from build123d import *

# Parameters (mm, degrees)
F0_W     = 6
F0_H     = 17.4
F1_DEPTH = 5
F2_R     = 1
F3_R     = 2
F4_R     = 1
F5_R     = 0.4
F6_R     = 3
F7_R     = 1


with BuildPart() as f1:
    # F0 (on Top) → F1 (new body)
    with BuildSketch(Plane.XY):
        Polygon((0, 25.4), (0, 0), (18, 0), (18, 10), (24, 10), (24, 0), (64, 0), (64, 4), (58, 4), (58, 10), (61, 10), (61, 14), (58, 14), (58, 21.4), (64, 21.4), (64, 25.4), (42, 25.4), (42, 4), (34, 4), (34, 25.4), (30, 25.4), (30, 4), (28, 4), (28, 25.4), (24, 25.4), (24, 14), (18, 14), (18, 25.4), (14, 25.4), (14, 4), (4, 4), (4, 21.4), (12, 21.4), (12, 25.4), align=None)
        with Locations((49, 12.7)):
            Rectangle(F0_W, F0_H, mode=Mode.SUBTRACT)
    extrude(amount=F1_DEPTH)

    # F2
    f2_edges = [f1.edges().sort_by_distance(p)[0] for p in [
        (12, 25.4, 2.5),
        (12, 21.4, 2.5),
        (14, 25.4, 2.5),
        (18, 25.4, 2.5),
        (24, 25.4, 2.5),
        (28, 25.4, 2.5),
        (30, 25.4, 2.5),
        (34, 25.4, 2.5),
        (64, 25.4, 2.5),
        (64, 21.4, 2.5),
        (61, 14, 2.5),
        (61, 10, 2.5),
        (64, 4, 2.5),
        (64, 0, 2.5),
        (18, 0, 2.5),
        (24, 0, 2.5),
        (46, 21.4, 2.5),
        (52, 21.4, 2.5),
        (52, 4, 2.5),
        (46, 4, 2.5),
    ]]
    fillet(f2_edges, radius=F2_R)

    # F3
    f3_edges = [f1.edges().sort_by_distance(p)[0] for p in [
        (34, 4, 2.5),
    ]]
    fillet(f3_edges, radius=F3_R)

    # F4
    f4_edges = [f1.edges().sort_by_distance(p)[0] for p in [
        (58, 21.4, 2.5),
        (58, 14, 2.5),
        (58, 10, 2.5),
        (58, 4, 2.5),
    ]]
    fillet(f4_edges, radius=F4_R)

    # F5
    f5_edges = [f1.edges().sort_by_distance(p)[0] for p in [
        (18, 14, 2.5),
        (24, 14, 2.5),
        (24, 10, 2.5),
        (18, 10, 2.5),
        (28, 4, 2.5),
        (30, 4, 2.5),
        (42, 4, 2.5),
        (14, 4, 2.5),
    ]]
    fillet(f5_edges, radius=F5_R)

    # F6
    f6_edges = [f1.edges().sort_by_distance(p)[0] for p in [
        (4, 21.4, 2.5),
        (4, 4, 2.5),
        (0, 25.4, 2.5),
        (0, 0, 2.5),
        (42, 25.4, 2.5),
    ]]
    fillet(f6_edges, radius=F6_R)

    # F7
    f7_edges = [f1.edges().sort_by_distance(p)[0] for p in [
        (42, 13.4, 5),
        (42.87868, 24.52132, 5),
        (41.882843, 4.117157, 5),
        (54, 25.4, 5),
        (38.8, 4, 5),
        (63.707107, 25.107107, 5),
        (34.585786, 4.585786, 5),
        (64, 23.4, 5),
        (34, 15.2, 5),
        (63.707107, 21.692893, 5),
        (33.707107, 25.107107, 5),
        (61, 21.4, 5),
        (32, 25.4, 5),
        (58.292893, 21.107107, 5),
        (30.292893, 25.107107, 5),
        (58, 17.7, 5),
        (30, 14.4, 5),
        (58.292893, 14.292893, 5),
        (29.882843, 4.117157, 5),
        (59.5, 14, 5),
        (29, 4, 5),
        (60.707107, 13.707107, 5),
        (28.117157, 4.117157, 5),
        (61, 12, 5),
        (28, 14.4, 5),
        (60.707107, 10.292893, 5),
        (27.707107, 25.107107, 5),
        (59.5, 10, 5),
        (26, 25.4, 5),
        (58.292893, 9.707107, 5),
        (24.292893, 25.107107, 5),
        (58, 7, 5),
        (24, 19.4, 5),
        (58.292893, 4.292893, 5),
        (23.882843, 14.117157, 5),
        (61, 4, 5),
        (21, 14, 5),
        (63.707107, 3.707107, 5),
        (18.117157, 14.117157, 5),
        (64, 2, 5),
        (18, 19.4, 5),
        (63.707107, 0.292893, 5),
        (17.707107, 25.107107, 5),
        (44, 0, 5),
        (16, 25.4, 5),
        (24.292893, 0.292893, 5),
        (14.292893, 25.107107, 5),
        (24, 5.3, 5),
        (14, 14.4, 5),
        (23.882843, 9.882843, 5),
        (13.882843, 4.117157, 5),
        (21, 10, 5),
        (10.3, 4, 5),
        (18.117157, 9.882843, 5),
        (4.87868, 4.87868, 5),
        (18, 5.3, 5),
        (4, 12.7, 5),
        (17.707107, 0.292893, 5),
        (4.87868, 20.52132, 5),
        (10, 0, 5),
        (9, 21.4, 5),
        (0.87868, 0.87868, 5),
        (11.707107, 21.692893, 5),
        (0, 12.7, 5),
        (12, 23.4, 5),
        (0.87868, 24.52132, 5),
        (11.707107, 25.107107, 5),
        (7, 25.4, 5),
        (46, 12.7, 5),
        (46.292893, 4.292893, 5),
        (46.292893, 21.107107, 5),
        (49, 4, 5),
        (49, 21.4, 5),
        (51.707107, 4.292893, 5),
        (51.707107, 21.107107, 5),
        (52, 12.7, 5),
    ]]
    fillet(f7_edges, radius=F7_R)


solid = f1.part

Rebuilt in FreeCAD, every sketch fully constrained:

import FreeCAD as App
import Part
import Sketcher
from FreeCAD import Vector


def edges_at(feature, points):
    """Names of the edges that pass closest to the given points."""
    edges = feature.Shape.Edges
    near = lambda p: min(range(len(edges)), key=lambda i: edges[i].distToShape(Part.Vertex(*p))[0])
    return sorted({f"Edge{near(p) + 1}" for p in points})


def add_polygon(sketch, points):
    """Adds a closed chain of lines whose ends are joined by coincident constraints."""
    first, n = sketch.GeometryCount, len(points)
    for a, b in zip(points, points[1:] + points[:1]):
        sketch.addGeometry(Part.LineSegment(App.Vector(*a, 0), App.Vector(*b, 0)), False)
    for i in range(n):
        sketch.addConstraint(Sketcher.Constraint("Coincident", first + i, 2, first + (i + 1) % n, 1))

doc = App.newDocument("Part")
body = doc.addObject("PartDesign::Body", "Body")

sketch1 = body.newObject("Sketcher::SketchObject", "Sketch")
sketch1.AttachmentSupport = (doc.getObject("XY_Plane"), [""])
sketch1.MapMode = "FlatFace"
add_polygon(sketch1, [(0, 25.4), (0, 0), (18, 0), (18, 10), (24, 10), (24, 0), (64, 0), (64, 4), (58, 4), (58, 10), (61, 10), (61, 14), (58, 14), (58, 21.4), (64, 21.4), (64, 25.4), (42, 25.4), (42, 4), (34, 4), (34, 25.4), (30, 25.4), (30, 4), (28, 4), (28, 25.4), (24, 25.4), (24, 14), (18, 14), (18, 25.4), (14, 25.4), (14, 4), (4, 4), (4, 21.4), (12, 21.4), (12, 25.4)])
add_polygon(sketch1, [(52, 4), (46, 4), (46, 21.4), (52, 21.4)])
sketch1.addConstraint(Sketcher.Constraint("Vertical", 0))
sketch1.addConstraint(Sketcher.Constraint("Horizontal", 1))
sketch1.addConstraint(Sketcher.Constraint("Vertical", 2))
sketch1.addConstraint(Sketcher.Constraint("Horizontal", 3))
sketch1.addConstraint(Sketcher.Constraint("Vertical", 4))
sketch1.addConstraint(Sketcher.Constraint("Horizontal", 5))
sketch1.addConstraint(Sketcher.Constraint("Vertical", 6))
sketch1.addConstraint(Sketcher.Constraint("Horizontal", 7))
sketch1.addConstraint(Sketcher.Constraint("Vertical", 8))
sketch1.addConstraint(Sketcher.Constraint("Horizontal", 9))
sketch1.addConstraint(Sketcher.Constraint("Vertical", 10))
sketch1.addConstraint(Sketcher.Constraint("Horizontal", 11))
sketch1.addConstraint(Sketcher.Constraint("Vertical", 12))
sketch1.addConstraint(Sketcher.Constraint("Horizontal", 13))
sketch1.addConstraint(Sketcher.Constraint("Vertical", 14))
sketch1.addConstraint(Sketcher.Constraint("Horizontal", 15))
sketch1.addConstraint(Sketcher.Constraint("Vertical", 16))
sketch1.addConstraint(Sketcher.Constraint("Horizontal", 17))
sketch1.addConstraint(Sketcher.Constraint("Vertical", 18))
sketch1.addConstraint(Sketcher.Constraint("Horizontal", 19))
sketch1.addConstraint(Sketcher.Constraint("Vertical", 20))
sketch1.addConstraint(Sketcher.Constraint("Horizontal", 21))
sketch1.addConstraint(Sketcher.Constraint("Vertical", 22))
sketch1.addConstraint(Sketcher.Constraint("Horizontal", 23))
sketch1.addConstraint(Sketcher.Constraint("Vertical", 24))
sketch1.addConstraint(Sketcher.Constraint("Horizontal", 25))
sketch1.addConstraint(Sketcher.Constraint("Vertical", 26))
sketch1.addConstraint(Sketcher.Constraint("Horizontal", 27))
sketch1.addConstraint(Sketcher.Constraint("Vertical", 28))
sketch1.addConstraint(Sketcher.Constraint("Horizontal", 29))
sketch1.addConstraint(Sketcher.Constraint("Vertical", 30))
sketch1.addConstraint(Sketcher.Constraint("Horizontal", 31))
sketch1.addConstraint(Sketcher.Constraint("Vertical", 32))
sketch1.addConstraint(Sketcher.Constraint("Horizontal", 33))
sketch1.addConstraint(Sketcher.Constraint("Horizontal", 34))
sketch1.addConstraint(Sketcher.Constraint("Vertical", 35))
sketch1.addConstraint(Sketcher.Constraint("Horizontal", 36))
sketch1.addConstraint(Sketcher.Constraint("Vertical", 37))
sketch1.addConstraint(Sketcher.Constraint("Coincident", 0, 2, -1, 1))
sketch1.addConstraint(Sketcher.Constraint("PointOnObject", 4, 2, -1))
sketch1.addConstraint(Sketcher.Constraint("Horizontal", 3, 2, 8, 2))
sketch1.addConstraint(Sketcher.Constraint("Horizontal", 7, 2, 16, 2))
sketch1.addConstraint(Sketcher.Constraint("Horizontal", 15, 2, 18, 2))
sketch1.addConstraint(Sketcher.Constraint("Horizontal", 17, 2, 20, 2))
sketch1.addConstraint(Sketcher.Constraint("Horizontal", 19, 2, 22, 2))
sketch1.addConstraint(Sketcher.Constraint("Horizontal", 11, 2, 24, 2))
sketch1.addConstraint(Sketcher.Constraint("Horizontal", 23, 2, 26, 2))
sketch1.addConstraint(Sketcher.Constraint("Horizontal", 21, 2, 28, 2))
sketch1.addConstraint(Sketcher.Constraint("Horizontal", 13, 2, 30, 2))
sketch1.addConstraint(Sketcher.Constraint("Horizontal", 27, 2, 32, 2))
sketch1.addConstraint(Sketcher.Constraint("Horizontal", 29, 2, 34, 2))
sketch1.addConstraint(Sketcher.Constraint("Horizontal", 31, 2, 35, 2))
sketch1.addConstraint(Sketcher.Constraint("Vertical", 8, 2, 11, 2))
sketch1.addConstraint(Sketcher.Constraint("Vertical", 6, 2, 13, 2))
sketch1.addConstraint(Sketcher.Constraint("Vertical", 4, 2, 23, 2))
sketch1.addConstraint(Sketcher.Constraint("Vertical", 2, 2, 25, 2))
sketch1.addConstraint(Sketcher.Constraint("Equal", 3, 7))
sketch1.addConstraint(Sketcher.Constraint("Equal", 19, 23))
sketch1.addConstraint(Sketcher.Constraint("Equal", 23, 27))
sketch1.addConstraint(Sketcher.Constraint("Equal", 17, 31))
sketch1.addConstraint(Sketcher.Constraint("Equal", 25, 34))
sketch1.addConstraint(Sketcher.Constraint("Equal", 29, 2))
sketch1.addConstraint(Sketcher.Constraint("Equal", 27, 6))
sketch1.addConstraint(Sketcher.Constraint("Equal", 36, 8))
sketch1.addConstraint(Sketcher.Constraint("Equal", 6, 10))
sketch1.addConstraint(Sketcher.Constraint("Equal", 10, 14))
sketch1.addConstraint(Sketcher.Constraint("DistanceX", 1, 1, 1, 2, 18.0))
sketch1.addConstraint(Sketcher.Constraint("DistanceX", 3, 1, 3, 2, 6.0))
sketch1.addConstraint(Sketcher.Constraint("DistanceX", 5, 1, 5, 2, 40.0))
sketch1.addConstraint(Sketcher.Constraint("DistanceX", 9, 1, 9, 2, 3.0))
sketch1.addConstraint(Sketcher.Constraint("DistanceX", 15, 2, 15, 1, 22.0))
sketch1.addConstraint(Sketcher.Constraint("DistanceX", 17, 2, 17, 1, 8.0))
sketch1.addConstraint(Sketcher.Constraint("DistanceX", 19, 2, 19, 1, 4.0))
sketch1.addConstraint(Sketcher.Constraint("DistanceY", 0, 2, 0, 1, 25.4))
sketch1.addConstraint(Sketcher.Constraint("DistanceX", -1, 1, 34, 2, 46.0))
pad1 = body.newObject("PartDesign::Pad", "Pad")
pad1.Profile = sketch1
pad1.Length = 5
doc.recompute()

fillet = body.newObject("PartDesign::Fillet", "Fillet")
fillet.Base = (pad1, edges_at(pad1, [
    (12, 25.4, 2.5),
    (12, 21.4, 2.5),
    (14, 25.4, 2.5),
    (18, 25.4, 2.5),
    (24, 25.4, 2.5),
    (28, 25.4, 2.5),
    (30, 25.4, 2.5),
    (34, 25.4, 2.5),
    (64, 25.4, 2.5),
    (64, 21.4, 2.5),
    (61, 14, 2.5),
    (61, 10, 2.5),
    (64, 4, 2.5),
    (64, 0, 2.5),
    (18, 0, 2.5),
    (24, 0, 2.5),
    (46, 21.4, 2.5),
    (52, 21.4, 2.5),
    (52, 4, 2.5),
    (46, 4, 2.5),
]))
fillet.Radius = 1
doc.recompute()

fillet2 = body.newObject("PartDesign::Fillet", "Fillet001")
fillet2.Base = (fillet, edges_at(fillet, [(34, 4, 2.5)]))
fillet2.Radius = 2
doc.recompute()

fillet3 = body.newObject("PartDesign::Fillet", "Fillet002")
fillet3.Base = (fillet2, edges_at(fillet2, [
    (58, 21.4, 2.5),
    (58, 14, 2.5),
    (58, 10, 2.5),
    (58, 4, 2.5),
]))
fillet3.Radius = 1
doc.recompute()

fillet4 = body.newObject("PartDesign::Fillet", "Fillet003")
fillet4.Base = (fillet3, edges_at(fillet3, [
    (18, 14, 2.5),
    (24, 14, 2.5),
    (24, 10, 2.5),
    (18, 10, 2.5),
    (28, 4, 2.5),
    (30, 4, 2.5),
    (42, 4, 2.5),
    (14, 4, 2.5),
]))
fillet4.Radius = 0.4
doc.recompute()

fillet5 = body.newObject("PartDesign::Fillet", "Fillet004")
fillet5.Base = (fillet4, edges_at(fillet4, [
    (4, 21.4, 2.5),
    (4, 4, 2.5),
    (0, 25.4, 2.5),
    (0, 0, 2.5),
    (42, 25.4, 2.5),
]))
fillet5.Radius = 3
doc.recompute()

fillet6 = body.newObject("PartDesign::Fillet", "Fillet005")
fillet6.Base = (fillet5, edges_at(fillet5, [
    (42, 13.4, 5),
    (42.879, 24.521, 5),
    (41.883, 4.117, 5),
    (54, 25.4, 5),
    (38.8, 4, 5),
    (63.707, 25.107, 5),
    (34.586, 4.586, 5),
    (64, 23.4, 5),
    (34, 15.2, 5),
    (63.707, 21.693, 5),
    (33.707, 25.107, 5),
    (61, 21.4, 5),
    (32, 25.4, 5),
    (58.293, 21.107, 5),
    (30.293, 25.107, 5),
    (58, 17.7, 5),
    (30, 14.4, 5),
    (58.293, 14.293, 5),
    (29.883, 4.117, 5),
    (59.5, 14, 5),
    (29, 4, 5),
    (60.707, 13.707, 5),
    (28.117, 4.117, 5),
    (61, 12, 5),
    (28, 14.4, 5),
    (60.707, 10.293, 5),
    (27.707, 25.107, 5),
    (59.5, 10, 5),
    (26, 25.4, 5),
    (58.293, 9.707, 5),
    (24.293, 25.107, 5),
    (58, 7, 5),
    (24, 19.4, 5),
    (58.293, 4.293, 5),
    (23.883, 14.117, 5),
    (61, 4, 5),
    (21, 14, 5),
    (63.707, 3.707, 5),
    (18.117, 14.117, 5),
    (64, 2, 5),
    (18, 19.4, 5),
    (63.707, 0.293, 5),
    (17.707, 25.107, 5),
    (44, 0, 5),
    (16, 25.4, 5),
    (24.293, 0.293, 5),
    (14.293, 25.107, 5),
    (24, 5.3, 5),
    (14, 14.4, 5),
    (23.883, 9.883, 5),
    (13.883, 4.117, 5),
    (21, 10, 5),
    (10.3, 4, 5),
    (18.117, 9.883, 5),
    (4.879, 4.879, 5),
    (18, 5.3, 5),
    (4, 12.7, 5),
    (17.707, 0.293, 5),
    (4.879, 20.521, 5),
    (10, 0, 5),
    (9, 21.4, 5),
    (0.879, 0.879, 5),
    (11.707, 21.693, 5),
    (0, 12.7, 5),
    (12, 23.4, 5),
    (0.879, 24.521, 5),
    (11.707, 25.107, 5),
    (7, 25.4, 5),
    (46, 12.7, 5),
    (46.293, 4.293, 5),
    (46.293, 21.107, 5),
    (49, 4, 5),
    (49, 21.4, 5),
    (51.707, 4.293, 5),
    (51.707, 21.107, 5),
    (52, 12.7, 5),
]))
fillet6.Radius = 1

doc.recompute()
